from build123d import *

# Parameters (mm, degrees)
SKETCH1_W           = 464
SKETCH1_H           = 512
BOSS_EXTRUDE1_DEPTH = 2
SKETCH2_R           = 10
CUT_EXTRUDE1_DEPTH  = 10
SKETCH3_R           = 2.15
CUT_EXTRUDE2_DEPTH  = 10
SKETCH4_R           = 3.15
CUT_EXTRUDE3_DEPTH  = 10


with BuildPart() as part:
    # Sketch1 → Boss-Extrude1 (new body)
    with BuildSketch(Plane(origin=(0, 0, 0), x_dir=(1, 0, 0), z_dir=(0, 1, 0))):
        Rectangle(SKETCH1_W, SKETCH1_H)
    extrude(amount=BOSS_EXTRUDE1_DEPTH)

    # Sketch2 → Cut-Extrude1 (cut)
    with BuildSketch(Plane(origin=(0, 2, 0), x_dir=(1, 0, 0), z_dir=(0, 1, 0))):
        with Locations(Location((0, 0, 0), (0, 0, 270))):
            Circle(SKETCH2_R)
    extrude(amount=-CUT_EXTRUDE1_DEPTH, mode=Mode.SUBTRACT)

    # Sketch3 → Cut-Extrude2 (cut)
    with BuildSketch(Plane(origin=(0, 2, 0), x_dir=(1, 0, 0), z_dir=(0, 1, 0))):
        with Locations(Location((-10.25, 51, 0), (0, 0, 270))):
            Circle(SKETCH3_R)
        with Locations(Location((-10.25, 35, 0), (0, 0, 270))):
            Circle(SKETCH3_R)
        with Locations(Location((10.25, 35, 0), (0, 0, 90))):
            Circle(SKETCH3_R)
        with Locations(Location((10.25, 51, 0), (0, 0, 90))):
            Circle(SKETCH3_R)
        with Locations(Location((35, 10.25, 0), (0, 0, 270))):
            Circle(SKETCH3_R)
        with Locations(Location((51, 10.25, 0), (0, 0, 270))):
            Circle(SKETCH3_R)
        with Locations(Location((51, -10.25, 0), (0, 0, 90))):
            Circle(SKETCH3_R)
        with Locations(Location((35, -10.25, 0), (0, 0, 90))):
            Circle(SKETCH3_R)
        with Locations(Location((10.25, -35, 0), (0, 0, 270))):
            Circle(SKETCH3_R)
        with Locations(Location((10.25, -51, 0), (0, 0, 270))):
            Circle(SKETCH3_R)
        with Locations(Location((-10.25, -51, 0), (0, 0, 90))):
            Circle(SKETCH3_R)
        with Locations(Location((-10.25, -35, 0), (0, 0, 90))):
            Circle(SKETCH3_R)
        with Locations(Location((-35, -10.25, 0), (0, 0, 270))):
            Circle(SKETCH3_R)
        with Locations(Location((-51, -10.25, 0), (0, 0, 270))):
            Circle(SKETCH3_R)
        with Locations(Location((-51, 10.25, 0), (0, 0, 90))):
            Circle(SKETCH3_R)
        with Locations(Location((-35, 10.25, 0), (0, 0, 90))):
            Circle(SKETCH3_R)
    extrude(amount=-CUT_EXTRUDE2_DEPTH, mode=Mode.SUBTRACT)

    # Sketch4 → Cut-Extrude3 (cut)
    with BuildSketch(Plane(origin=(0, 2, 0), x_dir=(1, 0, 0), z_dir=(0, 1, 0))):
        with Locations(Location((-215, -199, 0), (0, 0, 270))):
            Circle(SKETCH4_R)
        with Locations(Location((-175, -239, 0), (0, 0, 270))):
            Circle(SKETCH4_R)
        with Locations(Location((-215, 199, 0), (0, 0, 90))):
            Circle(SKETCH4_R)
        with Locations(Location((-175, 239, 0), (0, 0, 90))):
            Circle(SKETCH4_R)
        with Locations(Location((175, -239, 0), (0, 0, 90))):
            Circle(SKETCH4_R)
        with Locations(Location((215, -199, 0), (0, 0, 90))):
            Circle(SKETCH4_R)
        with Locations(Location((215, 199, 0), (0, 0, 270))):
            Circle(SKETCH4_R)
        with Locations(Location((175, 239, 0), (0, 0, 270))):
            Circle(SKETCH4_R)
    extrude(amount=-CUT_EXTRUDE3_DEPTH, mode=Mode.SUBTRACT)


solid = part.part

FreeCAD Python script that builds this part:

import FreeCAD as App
import Part
import Sketcher

doc = App.newDocument("Part")
body = doc.addObject("PartDesign::Body", "Body")

# Sketch on XZ plane
sketch1 = doc.addObject("Sketcher::SketchObject", "Sketch")
body.addObject(sketch1)
sketch1.AttachmentSupport = (doc.XZ_Plane, [""])
sketch1.MapMode = "FlatFace"
sketch1.addGeometry(Part.LineSegment(App.Vector(-232, -256, 0), App.Vector(-232, 256, 0)), False)
sketch1.addGeometry(Part.LineSegment(App.Vector(-232, 256, 0), App.Vector(232, 256, 0)), False)
sketch1.addGeometry(Part.LineSegment(App.Vector(232, 256, 0), App.Vector(232, -256, 0)), False)
sketch1.addGeometry(Part.LineSegment(App.Vector(232, -256, 0), App.Vector(-232, -256, 0)), False)
sketch1.addConstraint(Sketcher.Constraint("Coincident", 0, 2, 1, 1))
sketch1.addConstraint(Sketcher.Constraint("Coincident", 1, 2, 2, 1))
sketch1.addConstraint(Sketcher.Constraint("Coincident", 2, 2, 3, 1))
sketch1.addConstraint(Sketcher.Constraint("Coincident", 3, 2, 0, 1))
sketch1.addConstraint(Sketcher.Constraint("Vertical", 0))
sketch1.addConstraint(Sketcher.Constraint("Horizontal", 1))
sketch1.addConstraint(Sketcher.Constraint("Vertical", 2))
sketch1.addConstraint(Sketcher.Constraint("Horizontal", 3))
sketch1.addConstraint(Sketcher.Constraint("Symmetric", 0, 2, 2, 2, -1, 1))
sketch1.addConstraint(Sketcher.Constraint("DistanceX", 1, 1, 1, 2, 464.0))
sketch1.addConstraint(Sketcher.Constraint("DistanceY", 0, 1, 0, 2, 512.0))
pad1 = doc.addObject("PartDesign::Pad", "Pad")
body.addObject(pad1)
pad1.Profile = sketch1
pad1.Length = 2
pad1.Reversed = True

# Sketch on XZ plane
sketch2 = doc.addObject("Sketcher::SketchObject", "Sketch001")
body.addObject(sketch2)
sketch2.AttachmentSupport = (doc.XZ_Plane, [""])
sketch2.MapMode = "FlatFace"
sketch2.AttachmentOffset = App.Placement(App.Vector(0, 0, -2), App.Rotation())
sketch2.addGeometry(Part.Circle(App.Vector(0, 0, 0), App.Vector(0, 0, 1), 10), False)
sketch2.addConstraint(Sketcher.Constraint("Coincident", 0, 3, -1, 1))
sketch2.addConstraint(Sketcher.Constraint("Diameter", 0, 20.0))
pocket1 = doc.addObject("PartDesign::Pocket", "Pocket")
body.addObject(pocket1)
pocket1.Profile = sketch2
pocket1.Length = 10
pocket1.Reversed = True

# Sketch on XZ plane
sketch3 = doc.addObject("Sketcher::SketchObject", "Sketch002")
body.addObject(sketch3)
sketch3.AttachmentSupport = (doc.XZ_Plane, [""])
sketch3.MapMode = "FlatFace"
sketch3.AttachmentOffset = App.Placement(App.Vector(0, 0, -2), App.Rotation())
sketch3.addGeometry(Part.Circle(App.Vector(-10.2, -51, 0), App.Vector(0, 0, 1), 2.1), False)
sketch3.addGeometry(Part.Circle(App.Vector(-10.2, -35, 0), App.Vector(0, 0, 1), 2.1), False)
sketch3.addGeometry(Part.Circle(App.Vector(10.2, -35, 0), App.Vector(0, 0, 1), 2.1), False)
sketch3.addGeometry(Part.Circle(App.Vector(10.2, -51, 0), App.Vector(0, 0, 1), 2.1), False)
sketch3.addGeometry(Part.Circle(App.Vector(35, -10.2, 0), App.Vector(0, 0, 1), 2.1), False)
sketch3.addGeometry(Part.Circle(App.Vector(51, -10.2, 0), App.Vector(0, 0, 1), 2.1), False)
sketch3.addGeometry(Part.Circle(App.Vector(51, 10.2, 0), App.Vector(0, 0, 1), 2.1), False)
sketch3.addGeometry(Part.Circle(App.Vector(35, 10.2, 0), App.Vector(0, 0, 1), 2.1), False)
sketch3.addGeometry(Part.Circle(App.Vector(10.2, 35, 0), App.Vector(0, 0, 1), 2.1), False)
sketch3.addGeometry(Part.Circle(App.Vector(10.2, 51, 0), App.Vector(0, 0, 1), 2.1), False)
sketch3.addGeometry(Part.Circle(App.Vector(-10.2, 51, 0), App.Vector(0, 0, 1), 2.1), False)
sketch3.addGeometry(Part.Circle(App.Vector(-10.2, 35, 0), App.Vector(0, 0, 1), 2.1), False)
sketch3.addGeometry(Part.Circle(App.Vector(-35, 10.2, 0), App.Vector(0, 0, 1), 2.1), False)
sketch3.addGeometry(Part.Circle(App.Vector(-51, 10.2, 0), App.Vector(0, 0, 1), 2.1), False)
sketch3.addGeometry(Part.Circle(App.Vector(-51, -10.2, 0), App.Vector(0, 0, 1), 2.1), False)
sketch3.addGeometry(Part.Circle(App.Vector(-35, -10.2, 0), App.Vector(0, 0, 1), 2.1), False)
sketch3.addConstraint(Sketcher.Constraint("Equal", 0, 1))
sketch3.addConstraint(Sketcher.Constraint("Equal", 1, 2))
sketch3.addConstraint(Sketcher.Constraint("Equal", 2, 3))
sketch3.addConstraint(Sketcher.Constraint("Equal", 3, 4))
sketch3.addConstraint(Sketcher.Constraint("Equal", 4, 5))
sketch3.addConstraint(Sketcher.Constraint("Equal", 5, 6))
sketch3.addConstraint(Sketcher.Constraint("Equal", 6, 7))
sketch3.addConstraint(Sketcher.Constraint("Equal", 7, 8))
sketch3.addConstraint(Sketcher.Constraint("Equal", 8, 9))
sketch3.addConstraint(Sketcher.Constraint("Equal", 9, 10))
sketch3.addConstraint(Sketcher.Constraint("Equal", 10, 11))
sketch3.addConstraint(Sketcher.Constraint("Equal", 11, 12))
sketch3.addConstraint(Sketcher.Constraint("Equal", 12, 13))
sketch3.addConstraint(Sketcher.Constraint("Equal", 13, 14))
sketch3.addConstraint(Sketcher.Constraint("Equal", 14, 15))
sketch3.addConstraint(Sketcher.Constraint("Symmetric", 1, 3, 8, 3, -1, 1))
sketch3.addConstraint(Sketcher.Constraint("Symmetric", 0, 3, 9, 3, -1, 1))
sketch3.addConstraint(Sketcher.Constraint("Symmetric", 3, 3, 10, 3, -1, 1))
sketch3.addConstraint(Sketcher.Constraint("Symmetric", 2, 3, 11, 3, -1, 1))
sketch3.addConstraint(Sketcher.Constraint("Symmetric", 4, 3, 12, 3, -1, 1))
sketch3.addConstraint(Sketcher.Constraint("Symmetric", 5, 3, 13, 3, -1, 1))
sketch3.addConstraint(Sketcher.Constraint("Symmetric", 6, 3, 14, 3, -1, 1))
sketch3.addConstraint(Sketcher.Constraint("Symmetric", 7, 3, 15, 3, -1, 1))
sketch3.addConstraint(Sketcher.Constraint("Symmetric", 1, 3, 2, 3, -2))
sketch3.addConstraint(Sketcher.Constraint("Symmetric", 0, 3, 3, 3, -2))
sketch3.addConstraint(Sketcher.Constraint("Symmetric", 7, 3, 12, 3, -2))
sketch3.addConstraint(Sketcher.Constraint("Symmetric", 6, 3, 13, 3, -2))
sketch3.addConstraint(Sketcher.Constraint("Horizontal", 4, 3, 5, 3))
sketch3.addConstraint(Sketcher.Constraint("Vertical", 0, 3, 1, 3))
sketch3.addConstraint(Sketcher.Constraint("Diameter", 0, 4.3))
sketch3.addConstraint(Sketcher.Constraint("DistanceY", 0, 3, -1, 1, 51.0))
sketch3.addConstraint(Sketcher.Constraint("DistanceY", 1, 3, -1, 1, 35.0))
sketch3.addConstraint(Sketcher.Constraint("DistanceX", -1, 1, 4, 3, 35.0))
sketch3.addConstraint(Sketcher.Constraint("DistanceX", -1, 1, 5, 3, 51.0))
sketch3.addConstraint(Sketcher.Constraint("DistanceX", 1, 3, 2, 3, 20.5))
sketch3.addConstraint(Sketcher.Constraint("DistanceY", 5, 3, 6, 3, 20.5))
pocket2 = doc.addObject("PartDesign::Pocket", "Pocket001")
body.addObject(pocket2)
pocket2.Profile = sketch3
pocket2.Length = 10
pocket2.Reversed = True

# Sketch on XZ plane
sketch4 = doc.addObject("Sketcher::SketchObject", "Sketch003")
body.addObject(sketch4)
sketch4.AttachmentSupport = (doc.XZ_Plane, [""])
sketch4.MapMode = "FlatFace"
sketch4.AttachmentOffset = App.Placement(App.Vector(0, 0, -2), App.Rotation())
sketch4.addGeometry(Part.Circle(App.Vector(-215, 199, 0), App.Vector(0, 0, 1), 3.1), False)
sketch4.addGeometry(Part.Circle(App.Vector(-175, 239, 0), App.Vector(0, 0, 1), 3.1), False)
sketch4.addGeometry(Part.Circle(App.Vector(-215, -199, 0), App.Vector(0, 0, 1), 3.1), False)
sketch4.addGeometry(Part.Circle(App.Vector(-175, -239, 0), App.Vector(0, 0, 1), 3.1), False)
sketch4.addGeometry(Part.Circle(App.Vector(175, 239, 0), App.Vector(0, 0, 1), 3.1), False)
sketch4.addGeometry(Part.Circle(App.Vector(215, 199, 0), App.Vector(0, 0, 1), 3.1), False)
sketch4.addGeometry(Part.Circle(App.Vector(215, -199, 0), App.Vector(0, 0, 1), 3.1), False)
sketch4.addGeometry(Part.Circle(App.Vector(175, -239, 0), App.Vector(0, 0, 1), 3.1), False)
sketch4.addConstraint(Sketcher.Constraint("Equal", 0, 1))
sketch4.addConstraint(Sketcher.Constraint("Equal", 1, 2))
sketch4.addConstraint(Sketcher.Constraint("Equal", 2, 3))
sketch4.addConstraint(Sketcher.Constraint("Equal", 3, 4))
sketch4.addConstraint(Sketcher.Constraint("Equal", 4, 5))
sketch4.addConstraint(Sketcher.Constraint("Equal", 5, 6))
sketch4.addConstraint(Sketcher.Constraint("Equal", 6, 7))
sketch4.addConstraint(Sketcher.Constraint("Symmetric", 3, 3, 4, 3, -1, 1))
sketch4.addConstraint(Sketcher.Constraint("Symmetric", 2, 3, 5, 3, -1, 1))
sketch4.addConstraint(Sketcher.Constraint("Symmetric", 0, 3, 6, 3, -1, 1))
sketch4.addConstraint(Sketcher.Constraint("Symmetric", 1, 3, 7, 3, -1, 1))
sketch4.addConstraint(Sketcher.Constraint("Symmetric", 1, 3, 4, 3, -2))
sketch4.addConstraint(Sketcher.Constraint("Symmetric", 0, 3, 5, 3, -2))
sketch4.addConstraint(Sketcher.Constraint("Diameter", 0, 6.3))
sketch4.addConstraint(Sketcher.Constraint("DistanceX", 0, 3, -1, 1, 215.0))
sketch4.addConstraint(Sketcher.Constraint("DistanceY", -1, 1, 0, 3, 199.0))
sketch4.addConstraint(Sketcher.Constraint("DistanceX", 1, 3, -1, 1, 175.0))
sketch4.addConstraint(Sketcher.Constraint("DistanceY", -1, 1, 1, 3, 239.0))
pocket3 = doc.addObject("PartDesign::Pocket", "Pocket002")
body.addObject(pocket3)
pocket3.Profile = sketch4
pocket3.Length = 10
pocket3.Reversed = True

doc.recompute()
